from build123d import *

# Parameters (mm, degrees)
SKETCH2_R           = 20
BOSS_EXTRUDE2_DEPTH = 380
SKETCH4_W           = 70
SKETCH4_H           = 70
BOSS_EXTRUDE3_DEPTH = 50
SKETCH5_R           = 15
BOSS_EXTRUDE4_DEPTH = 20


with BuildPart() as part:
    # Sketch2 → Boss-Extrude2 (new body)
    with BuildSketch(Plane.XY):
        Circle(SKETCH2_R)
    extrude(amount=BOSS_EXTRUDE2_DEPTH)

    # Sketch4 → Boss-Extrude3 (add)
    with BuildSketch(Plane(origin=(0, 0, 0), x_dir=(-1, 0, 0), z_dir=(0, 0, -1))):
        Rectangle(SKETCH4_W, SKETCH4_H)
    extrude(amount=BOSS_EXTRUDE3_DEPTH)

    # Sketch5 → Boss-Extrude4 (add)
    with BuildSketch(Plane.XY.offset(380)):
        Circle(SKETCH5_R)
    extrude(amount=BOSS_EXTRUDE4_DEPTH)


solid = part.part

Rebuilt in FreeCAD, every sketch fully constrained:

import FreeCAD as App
import Part
import Sketcher
Q = App.Units.Quantity

doc = App.newDocument("Part")
body = doc.addObject("PartDesign::Body", "Body")

# Sketch on XY plane
sketch1 = doc.addObject("Sketcher::SketchObject", "Sketch")
body.addObject(sketch1)
sketch1.AttachmentSupport = (doc.XY_Plane, [""])
sketch1.MapMode = "FlatFace"
sketch1.addGeometry(Part.Circle(App.Vector(0, 0, 0), App.Vector(0, 0, 1), 20), False)
sketch1.addConstraint([
    Sketcher.Constraint("Coincident", 0, 3, -1, 1),
    Sketcher.Constraint("Diameter", 0, Q("40 mm")),
])
pad1 = doc.addObject("PartDesign::Pad", "Pad")
body.addObject(pad1)
pad1.Profile = sketch1
pad1.Length = 380

# Sketch on XY plane
sketch2 = doc.addObject("Sketcher::SketchObject", "Sketch001")
body.addObject(sketch2)
sketch2.AttachmentSupport = (doc.XY_Plane, [""])
sketch2.MapMode = "FlatFace"
sketch2.addGeometry([
    Part.LineSegment(App.Vector(35, 35, 0), App.Vector(35, -35, 0)),
    Part.LineSegment(App.Vector(35, -35, 0), App.Vector(-35, -35, 0)),
    Part.LineSegment(App.Vector(-35, -35, 0), App.Vector(-35, 35, 0)),
    Part.LineSegment(App.Vector(-35, 35, 0), App.Vector(35, 35, 0)),
], False)
sketch2.addConstraint([
    Sketcher.Constraint("Coincident", 0, 2, 1, 1),
    Sketcher.Constraint("Coincident", 1, 2, 2, 1),
    Sketcher.Constraint("Coincident", 2, 2, 3, 1),
    Sketcher.Constraint("Coincident", 3, 2, 0, 1),
    Sketcher.Constraint("Vertical", 0),
    Sketcher.Constraint("Horizontal", 1),
    Sketcher.Constraint("Vertical", 2),
    Sketcher.Constraint("Horizontal", 3),
    Sketcher.Constraint("Symmetric", 0, 2, 2, 2, -1, 1),
    Sketcher.Constraint("Equal", 3, 0),
    Sketcher.Constraint("DistanceX", 1, 2, 1, 1, Q("70 mm")),
])
pad2 = doc.addObject("PartDesign::Pad", "Pad001")
body.addObject(pad2)
pad2.Profile = sketch2
pad2.Length = 50
pad2.Reversed = True

# Sketch on XY plane
sketch3 = doc.addObject("Sketcher::SketchObject", "Sketch002")
body.addObject(sketch3)
sketch3.AttachmentSupport = (doc.XY_Plane, [""])
sketch3.MapMode = "FlatFace"
sketch3.AttachmentOffset = App.Placement(App.Vector(0, 0, 380), App.Rotation())
sketch3.addGeometry(Part.Circle(App.Vector(0, 0, 0), App.Vector(0, 0, 1), 15), False)
sketch3.addConstraint([
    Sketcher.Constraint("Coincident", 0, 3, -1, 1),
    Sketcher.Constraint("Diameter", 0, Q("30 mm")),
])
pad3 = doc.addObject("PartDesign::Pad", "Pad002")
body.addObject(pad3)
pad3.Profile = sketch3
pad3.Length = 20

doc.recompute()
